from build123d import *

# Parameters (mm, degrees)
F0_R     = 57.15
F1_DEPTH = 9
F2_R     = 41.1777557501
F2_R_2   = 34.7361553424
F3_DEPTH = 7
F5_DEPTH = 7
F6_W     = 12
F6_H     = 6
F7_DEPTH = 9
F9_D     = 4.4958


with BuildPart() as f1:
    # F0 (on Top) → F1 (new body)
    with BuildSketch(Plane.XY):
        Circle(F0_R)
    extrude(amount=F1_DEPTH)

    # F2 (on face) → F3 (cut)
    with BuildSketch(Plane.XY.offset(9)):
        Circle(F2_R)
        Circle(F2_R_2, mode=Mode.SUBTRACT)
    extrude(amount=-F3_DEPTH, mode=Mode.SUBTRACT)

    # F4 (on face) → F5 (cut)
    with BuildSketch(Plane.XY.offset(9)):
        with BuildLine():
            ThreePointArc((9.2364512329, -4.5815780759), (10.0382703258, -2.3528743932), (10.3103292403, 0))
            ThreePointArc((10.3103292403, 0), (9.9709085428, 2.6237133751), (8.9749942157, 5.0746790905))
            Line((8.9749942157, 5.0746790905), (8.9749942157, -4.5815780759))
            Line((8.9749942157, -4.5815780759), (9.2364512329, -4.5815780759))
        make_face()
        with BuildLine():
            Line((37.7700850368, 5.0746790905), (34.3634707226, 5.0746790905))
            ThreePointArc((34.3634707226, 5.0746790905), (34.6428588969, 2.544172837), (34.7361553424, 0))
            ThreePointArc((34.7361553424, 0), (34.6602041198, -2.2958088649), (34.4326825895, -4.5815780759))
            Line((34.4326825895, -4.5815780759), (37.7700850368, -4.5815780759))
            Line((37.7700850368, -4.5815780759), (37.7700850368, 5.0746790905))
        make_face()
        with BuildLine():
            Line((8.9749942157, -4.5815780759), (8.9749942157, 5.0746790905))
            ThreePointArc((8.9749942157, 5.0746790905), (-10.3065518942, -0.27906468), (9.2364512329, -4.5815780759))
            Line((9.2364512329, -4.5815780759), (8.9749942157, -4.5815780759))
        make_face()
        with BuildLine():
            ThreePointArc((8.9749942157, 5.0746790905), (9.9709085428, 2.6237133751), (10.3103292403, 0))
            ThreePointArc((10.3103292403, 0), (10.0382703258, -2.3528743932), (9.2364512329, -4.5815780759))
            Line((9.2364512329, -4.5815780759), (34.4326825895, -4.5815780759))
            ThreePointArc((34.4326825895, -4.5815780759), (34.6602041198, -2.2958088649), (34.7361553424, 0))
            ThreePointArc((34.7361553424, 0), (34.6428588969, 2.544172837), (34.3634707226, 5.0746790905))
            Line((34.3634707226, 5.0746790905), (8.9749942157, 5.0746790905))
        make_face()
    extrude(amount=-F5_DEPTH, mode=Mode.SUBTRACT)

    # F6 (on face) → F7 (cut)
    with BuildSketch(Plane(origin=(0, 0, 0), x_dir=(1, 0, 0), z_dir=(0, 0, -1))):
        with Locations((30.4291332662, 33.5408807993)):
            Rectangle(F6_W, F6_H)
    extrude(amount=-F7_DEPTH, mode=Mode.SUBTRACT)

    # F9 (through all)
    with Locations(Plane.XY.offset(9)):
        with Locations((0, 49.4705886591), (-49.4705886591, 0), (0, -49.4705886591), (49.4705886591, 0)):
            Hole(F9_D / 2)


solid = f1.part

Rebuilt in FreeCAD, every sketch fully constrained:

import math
import FreeCAD as App
import Part
import Sketcher
from FreeCAD import Vector
Q = App.Units.Quantity


def add_polygon(sketch, points):
    """Adds a closed chain of lines whose ends are joined by coincident constraints."""
    first, n = sketch.GeometryCount, len(points)
    for a, b in zip(points, points[1:] + points[:1]):
        sketch.addGeometry(Part.LineSegment(App.Vector(*a, 0), App.Vector(*b, 0)), False)
    for i in range(n):
        sketch.addConstraint(Sketcher.Constraint("Coincident", first + i, 2, first + (i + 1) % n, 1))

doc = App.newDocument("Part")
params = doc.addObject("Spreadsheet::Sheet", "Params")
for row, (alias, value) in enumerate([
    ("sketch1_diameter", "114.3 mm"),
    ("pad1_length", "9 mm"),
    ("pocket1_length", "7 mm"),
    ("pocket2_length", "7 mm"),
    ("sketch4_width", "12 mm"),
    ("sketch4_height", "6 mm"),
    ("pocket3_length", "9 mm"),
    ("hole_diameter", "4.4958 mm"),
], start=1):
    params.set(f"A{row}", alias)
    params.set(f"B{row}", "=" + value)
    params.setAlias(f"B{row}", alias)

body = doc.addObject("PartDesign::Body", "Body")

# Sketch on XY plane
sketch1 = doc.addObject("Sketcher::SketchObject", "Sketch")
body.addObject(sketch1)
sketch1.AttachmentSupport = (doc.XY_Plane, [""])
sketch1.MapMode = "FlatFace"
sketch1.addGeometry(Part.Circle(Vector(0, 0, 0), Vector(0, 0, 1), 57.15), False)
sketch1.addConstraint([
    Sketcher.Constraint("Coincident", 0, 3, -1, 1),
    Sketcher.Constraint("Diameter", 0, Q("114.3 mm")),
])
sketch1.setExpression("Constraints[1]", "Params.sketch1_diameter")
pad1 = doc.addObject("PartDesign::Pad", "Pad")
body.addObject(pad1)
pad1.Profile = sketch1
pad1.setExpression("Length", "Params.pad1_length")

# Sketch on XY plane
sketch2 = doc.addObject("Sketcher::SketchObject", "Sketch001")
body.addObject(sketch2)
sketch2.AttachmentSupport = (doc.XY_Plane, [""])
sketch2.MapMode = "FlatFace"
sketch2.AttachmentOffset = App.Placement(Vector(0, 0, 9), App.Rotation())
sketch2.addGeometry([
    Part.Circle(Vector(0, 0, 0), Vector(0, 0, 1), 41.177756),
    Part.Circle(Vector(0, 0, 0), Vector(0, 0, 1), 34.736155),
], False)
sketch2.addConstraint([
    Sketcher.Constraint("Coincident", 0, 3, -1, 1),
    Sketcher.Constraint("Coincident", 1, 3, -1, 1),
    Sketcher.Constraint("Diameter", 0, Q("82.355512 mm")),
    Sketcher.Constraint("Diameter", 1, Q("69.472311 mm")),
])
pocket1 = doc.addObject("PartDesign::Pocket", "Pocket")
body.addObject(pocket1)
pocket1.Profile = sketch2
pocket1.setExpression("Length", "Params.pocket1_length")

# Sketch on XY plane
sketch3 = doc.addObject("Sketcher::SketchObject", "Sketch002")
body.addObject(sketch3)
sketch3.AttachmentSupport = (doc.XY_Plane, [""])
sketch3.MapMode = "FlatFace"
sketch3.AttachmentOffset = App.Placement(Vector(0, 0, 9), App.Rotation())
sketch3.addGeometry([
    Part.ArcOfCircle(Part.Circle(Vector(0, 0, 0), Vector(0, 0, 1), 10.310329), math.radians(29.484869), math.radians(333.617104)),
    Part.LineSegment(Vector(9.236451, -4.581578, 0), Vector(37.770085, -4.581578, 0)),
    Part.LineSegment(Vector(37.770085, -4.581578, 0), Vector(37.770085, 5.074679, 0)),
    Part.LineSegment(Vector(37.770085, 5.074679, 0), Vector(8.974994, 5.074679, 0)),
], False)
sketch3.addConstraint([
    Sketcher.Constraint("Coincident", 0, 2, 1, 1),
    Sketcher.Constraint("Coincident", 1, 2, 2, 1),
    Sketcher.Constraint("Coincident", 2, 2, 3, 1),
    Sketcher.Constraint("Coincident", 3, 2, 0, 1),
    Sketcher.Constraint("Horizontal", 1),
    Sketcher.Constraint("Vertical", 2),
    Sketcher.Constraint("Horizontal", 3),
    Sketcher.Constraint("Coincident", 0, 3, -1, 1),
    Sketcher.Constraint("Radius", 0, Q("10.310329 mm")),
    Sketcher.Constraint("DistanceX", 3, 2, 3, 1, Q("28.795091 mm")),
    Sketcher.Constraint("DistanceX", 1, 1, 1, 2, Q("28.533634 mm")),
    Sketcher.Constraint("DistanceY", 2, 1, 2, 2, Q("9.656257 mm")),
])
pocket2 = doc.addObject("PartDesign::Pocket", "Pocket001")
body.addObject(pocket2)
pocket2.Profile = sketch3
pocket2.setExpression("Length", "Params.pocket2_length")

# Sketch on XY plane
sketch4 = doc.addObject("Sketcher::SketchObject", "Sketch003")
body.addObject(sketch4)
sketch4.AttachmentSupport = (doc.XY_Plane, [""])
sketch4.MapMode = "FlatFace"
add_polygon(sketch4, [(24.429133, -36.540881), (24.429133, -30.540881), (36.429133, -30.540881), (36.429133, -36.540881)])  # lines 0-3
sketch4.addConstraint([
    Sketcher.Constraint("Vertical", 0),
    Sketcher.Constraint("Horizontal", 1),
    Sketcher.Constraint("Vertical", 2),
    Sketcher.Constraint("Horizontal", 3),
    Sketcher.Constraint("DistanceX", 1, 1, 1, 2, Q("12 mm")),
    Sketcher.Constraint("DistanceY", 0, 1, 0, 2, Q("6 mm")),
    Sketcher.Constraint("DistanceY", 0, 2, -1, 1, Q("30.540881 mm")),
    Sketcher.Constraint("DistanceX", -1, 1, 0, 2, Q("24.429133 mm")),
])
sketch4.setExpression("Constraints[8]", "Params.sketch4_width")
sketch4.setExpression("Constraints[9]", "Params.sketch4_height")
pocket3 = doc.addObject("PartDesign::Pocket", "Pocket002")
body.addObject(pocket3)
pocket3.Profile = sketch4
pocket3.setExpression("Length", "Params.pocket3_length")
pocket3.Reversed = True

# Sketch on XY plane
sketch5 = doc.addObject("Sketcher::SketchObject", "Sketch004")
body.addObject(sketch5)
sketch5.AttachmentSupport = (doc.XY_Plane, [""])
sketch5.MapMode = "FlatFace"
sketch5.AttachmentOffset = App.Placement(Vector(0, 0, 9), App.Rotation())
sketch5.addGeometry([
    Part.Circle(Vector(0, 49.470589, 0), Vector(0, 0, 1), 2.2479),
    Part.Circle(Vector(-49.470589, 0, 0), Vector(0, 0, 1), 2.2479),
    Part.Circle(Vector(0, -49.470589, 0), Vector(0, 0, 1), 2.2479),
    Part.Circle(Vector(49.470589, 0, 0), Vector(0, 0, 1), 2.2479),
], False)
sketch5.addConstraint([
    Sketcher.Constraint("Equal", 0, 1),
    Sketcher.Constraint("Equal", 1, 2),
    Sketcher.Constraint("Equal", 2, 3),
    Sketcher.Constraint("Symmetric", 0, 3, 2, 3, -1, 1),
    Sketcher.Constraint("Symmetric", 1, 3, 3, 3, -1, 1),
    Sketcher.Constraint("PointOnObject", 0, 3, -2),
    Sketcher.Constraint("PointOnObject", 1, 3, -1),
    Sketcher.Constraint("Diameter", 0, Q("4.4958 mm")),
    Sketcher.Constraint("DistanceY", -1, 1, 0, 3, Q("49.470589 mm")),
    Sketcher.Constraint("DistanceX", 1, 3, -1, 1, Q("49.470589 mm")),
])
doc.recompute()
hole = doc.addObject("PartDesign::Hole", "Hole")
body.addObject(hole)
hole.Profile = sketch5
hole.ThreadType = "None"
hole.setExpression("Diameter", "Params.hole_diameter")
hole.DepthType = "ThroughAll"

doc.recompute()
